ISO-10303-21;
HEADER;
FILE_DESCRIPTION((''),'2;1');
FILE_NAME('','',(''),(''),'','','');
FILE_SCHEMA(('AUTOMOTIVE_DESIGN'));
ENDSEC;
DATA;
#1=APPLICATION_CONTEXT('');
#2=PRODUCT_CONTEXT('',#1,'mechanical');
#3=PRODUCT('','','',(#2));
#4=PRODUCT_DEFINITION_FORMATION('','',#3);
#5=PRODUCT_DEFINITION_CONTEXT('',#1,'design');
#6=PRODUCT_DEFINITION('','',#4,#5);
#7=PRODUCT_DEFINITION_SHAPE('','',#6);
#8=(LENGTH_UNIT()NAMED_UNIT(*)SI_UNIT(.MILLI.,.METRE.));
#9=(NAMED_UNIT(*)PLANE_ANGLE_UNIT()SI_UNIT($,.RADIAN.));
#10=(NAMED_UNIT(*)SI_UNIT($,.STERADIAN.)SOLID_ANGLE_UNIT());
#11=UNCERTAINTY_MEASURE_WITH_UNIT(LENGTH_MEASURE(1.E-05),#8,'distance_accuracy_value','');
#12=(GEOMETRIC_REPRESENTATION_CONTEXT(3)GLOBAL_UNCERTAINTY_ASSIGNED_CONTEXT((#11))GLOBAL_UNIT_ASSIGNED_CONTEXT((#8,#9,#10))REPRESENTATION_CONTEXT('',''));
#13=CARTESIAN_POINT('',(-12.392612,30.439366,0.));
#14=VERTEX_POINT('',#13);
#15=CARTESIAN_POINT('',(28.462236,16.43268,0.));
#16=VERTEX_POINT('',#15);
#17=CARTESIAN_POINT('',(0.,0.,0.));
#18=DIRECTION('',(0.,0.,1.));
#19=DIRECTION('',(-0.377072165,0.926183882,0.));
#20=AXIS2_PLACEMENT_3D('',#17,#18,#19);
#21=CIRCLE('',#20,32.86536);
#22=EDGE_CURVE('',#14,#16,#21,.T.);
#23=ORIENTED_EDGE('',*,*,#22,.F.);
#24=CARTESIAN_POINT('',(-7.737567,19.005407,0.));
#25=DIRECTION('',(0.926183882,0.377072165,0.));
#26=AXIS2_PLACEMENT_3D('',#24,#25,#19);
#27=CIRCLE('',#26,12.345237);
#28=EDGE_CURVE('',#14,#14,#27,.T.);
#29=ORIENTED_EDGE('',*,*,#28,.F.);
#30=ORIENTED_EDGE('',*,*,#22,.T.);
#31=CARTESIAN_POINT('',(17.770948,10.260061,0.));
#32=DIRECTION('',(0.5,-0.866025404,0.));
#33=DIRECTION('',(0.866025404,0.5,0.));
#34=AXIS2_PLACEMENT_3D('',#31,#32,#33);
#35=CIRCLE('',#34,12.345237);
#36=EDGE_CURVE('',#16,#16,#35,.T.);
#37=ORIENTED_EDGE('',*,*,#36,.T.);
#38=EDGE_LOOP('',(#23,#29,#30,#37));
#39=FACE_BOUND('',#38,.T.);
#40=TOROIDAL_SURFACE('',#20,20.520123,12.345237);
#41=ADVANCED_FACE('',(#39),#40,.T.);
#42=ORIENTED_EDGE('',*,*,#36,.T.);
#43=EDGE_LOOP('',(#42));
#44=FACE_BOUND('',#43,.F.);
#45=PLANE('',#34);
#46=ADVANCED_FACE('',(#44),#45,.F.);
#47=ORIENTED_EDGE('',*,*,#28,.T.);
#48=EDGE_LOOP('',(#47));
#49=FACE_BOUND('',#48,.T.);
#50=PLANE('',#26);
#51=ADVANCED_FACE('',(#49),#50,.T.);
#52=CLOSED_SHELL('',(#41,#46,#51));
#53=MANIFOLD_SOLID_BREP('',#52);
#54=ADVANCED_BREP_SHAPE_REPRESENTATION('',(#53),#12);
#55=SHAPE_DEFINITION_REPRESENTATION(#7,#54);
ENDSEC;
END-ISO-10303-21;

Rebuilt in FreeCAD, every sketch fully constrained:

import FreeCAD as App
import Part
import Sketcher

V = App.Vector

doc = App.newDocument("Part")
body = doc.addObject("PartDesign::Body", "Body")

# Sketch on an angled plane
sketch1 = doc.addObject("Sketcher::SketchObject", "Sketch")
body.addObject(sketch1)
sketch1.Placement = App.Placement(V(0, 0, 0), App.Rotation(V(-0.377072165, 0.926183882, 0), V(0, 0, 1.000000001), V(0.926183882, 0.377072165, 0), "ZXY"))
sketch1.addGeometry(Part.Circle(V(21, 0, 0), V(0, 0, 1), 12), False)
sketch1.addConstraint(Sketcher.Constraint("PointOnObject", 0, 3, -1))
sketch1.addConstraint(Sketcher.Constraint("Diameter", 0, 24.690474))
sketch1.addConstraint(Sketcher.Constraint("DistanceX", -1, 1, 0, 3, 20.520123))
revolution = doc.addObject("PartDesign::Revolution", "Revolution")
body.addObject(revolution)
revolution.Profile = sketch1
revolution.ReferenceAxis = (sketch1, ["V_Axis"])
revolution.Angle = 277.847557

doc.recompute()
